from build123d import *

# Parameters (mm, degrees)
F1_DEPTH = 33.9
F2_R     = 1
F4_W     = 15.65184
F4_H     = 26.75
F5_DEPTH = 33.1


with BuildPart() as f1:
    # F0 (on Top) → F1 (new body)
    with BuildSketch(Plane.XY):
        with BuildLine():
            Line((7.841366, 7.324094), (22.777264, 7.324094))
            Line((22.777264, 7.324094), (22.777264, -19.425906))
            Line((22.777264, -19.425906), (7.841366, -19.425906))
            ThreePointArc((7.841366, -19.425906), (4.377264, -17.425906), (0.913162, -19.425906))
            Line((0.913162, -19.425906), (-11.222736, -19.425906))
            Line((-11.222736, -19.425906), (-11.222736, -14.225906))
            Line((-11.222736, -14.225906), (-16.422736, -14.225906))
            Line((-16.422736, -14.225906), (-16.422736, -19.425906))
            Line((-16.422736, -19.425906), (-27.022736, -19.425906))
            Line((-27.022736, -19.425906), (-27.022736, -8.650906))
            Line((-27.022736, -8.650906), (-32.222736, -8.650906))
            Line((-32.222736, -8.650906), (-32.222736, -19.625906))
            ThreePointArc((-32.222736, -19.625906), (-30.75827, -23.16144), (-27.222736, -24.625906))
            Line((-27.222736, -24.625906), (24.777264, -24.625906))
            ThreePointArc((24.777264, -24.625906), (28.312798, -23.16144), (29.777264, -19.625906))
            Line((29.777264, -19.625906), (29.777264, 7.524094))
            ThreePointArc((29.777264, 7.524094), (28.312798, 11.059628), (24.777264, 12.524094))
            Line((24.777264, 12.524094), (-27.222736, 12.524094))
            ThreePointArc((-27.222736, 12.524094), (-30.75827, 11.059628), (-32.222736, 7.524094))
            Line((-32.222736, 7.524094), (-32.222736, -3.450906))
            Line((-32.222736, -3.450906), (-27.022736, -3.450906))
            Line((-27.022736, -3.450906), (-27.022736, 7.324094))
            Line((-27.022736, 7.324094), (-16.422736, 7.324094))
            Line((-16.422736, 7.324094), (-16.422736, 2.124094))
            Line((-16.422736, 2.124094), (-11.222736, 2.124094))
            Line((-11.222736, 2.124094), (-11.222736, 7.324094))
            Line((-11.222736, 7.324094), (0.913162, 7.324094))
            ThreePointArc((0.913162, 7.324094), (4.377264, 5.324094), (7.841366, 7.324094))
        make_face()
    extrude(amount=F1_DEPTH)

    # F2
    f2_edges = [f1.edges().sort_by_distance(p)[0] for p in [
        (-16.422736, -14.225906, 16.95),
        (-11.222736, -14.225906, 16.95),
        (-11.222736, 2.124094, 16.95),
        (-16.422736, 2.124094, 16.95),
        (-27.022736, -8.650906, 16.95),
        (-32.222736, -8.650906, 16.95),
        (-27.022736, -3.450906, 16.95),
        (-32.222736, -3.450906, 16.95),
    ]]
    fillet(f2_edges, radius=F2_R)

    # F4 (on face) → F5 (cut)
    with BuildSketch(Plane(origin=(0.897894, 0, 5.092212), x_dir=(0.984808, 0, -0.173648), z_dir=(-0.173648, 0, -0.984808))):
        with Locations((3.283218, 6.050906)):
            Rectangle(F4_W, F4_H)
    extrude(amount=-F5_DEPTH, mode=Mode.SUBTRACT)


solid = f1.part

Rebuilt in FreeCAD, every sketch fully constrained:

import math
import FreeCAD as App
import Part
import Sketcher


def edges_at(feature, points):
    """Names of the edges that pass closest to the given points."""
    edges = feature.Shape.Edges
    near = lambda p: min(range(len(edges)), key=lambda i: edges[i].distToShape(Part.Vertex(*p))[0])
    return sorted({f"Edge{near(p) + 1}" for p in points})

doc = App.newDocument("Part")
body = doc.addObject("PartDesign::Body", "Body")

# Sketch on XY plane
sketch1 = doc.addObject("Sketcher::SketchObject", "Sketch")
body.addObject(sketch1)
sketch1.AttachmentSupport = (doc.XY_Plane, [""])
sketch1.MapMode = "FlatFace"
sketch1.addGeometry(Part.LineSegment(App.Vector(7.841366, 7.324094, 0), App.Vector(22.777264, 7.324094, 0)), False)
sketch1.addGeometry(Part.LineSegment(App.Vector(22.777264, 7.324094, 0), App.Vector(22.777264, -19.425906, 0)), False)
sketch1.addGeometry(Part.LineSegment(App.Vector(22.777264, -19.425906, 0), App.Vector(7.841366, -19.425906, 0)), False)
sketch1.addGeometry(Part.ArcOfCircle(Part.Circle(App.Vector(4.377264, -21.425907, 0), App.Vector(0, 0, 1), 4.000001), math.radians(30.000006), math.radians(149.999994)), False)
sketch1.addGeometry(Part.LineSegment(App.Vector(0.913162, -19.425906, 0), App.Vector(-11.222736, -19.425906, 0)), False)
sketch1.addGeometry(Part.LineSegment(App.Vector(-11.222736, -19.425906, 0), App.Vector(-11.222736, -14.225906, 0)), False)
sketch1.addGeometry(Part.LineSegment(App.Vector(-11.222736, -14.225906, 0), App.Vector(-16.422736, -14.225906, 0)), False)
sketch1.addGeometry(Part.LineSegment(App.Vector(-16.422736, -14.225906, 0), App.Vector(-16.422736, -19.425906, 0)), False)
sketch1.addGeometry(Part.LineSegment(App.Vector(-16.422736, -19.425906, 0), App.Vector(-27.022736, -19.425906, 0)), False)
sketch1.addGeometry(Part.LineSegment(App.Vector(-27.022736, -19.425906, 0), App.Vector(-27.022736, -8.650906, 0)), False)
sketch1.addGeometry(Part.LineSegment(App.Vector(-27.022736, -8.650906, 0), App.Vector(-32.222736, -8.650906, 0)), False)
sketch1.addGeometry(Part.LineSegment(App.Vector(-32.222736, -8.650906, 0), App.Vector(-32.222736, -19.625906, 0)), False)
sketch1.addGeometry(Part.ArcOfCircle(Part.Circle(App.Vector(-27.222736, -19.625906, 0), App.Vector(0, 0, 1), 5), math.radians(179.999996), math.radians(270.000004)), False)
sketch1.addGeometry(Part.LineSegment(App.Vector(-27.222736, -24.625906, 0), App.Vector(24.777264, -24.625906, 0)), False)
sketch1.addGeometry(Part.ArcOfCircle(Part.Circle(App.Vector(24.777264, -19.625906, 0), App.Vector(0, 0, 1), 5), math.radians(-90.000004), math.radians(0.000004)), False)
sketch1.addGeometry(Part.LineSegment(App.Vector(29.777264, -19.625906, 0), App.Vector(29.777264, 7.524094, 0)), False)
sketch1.addGeometry(Part.ArcOfCircle(Part.Circle(App.Vector(24.777264, 7.524094, 0), App.Vector(0, 0, 1), 5), math.radians(-0.000004), math.radians(90.000004)), False)
sketch1.addGeometry(Part.LineSegment(App.Vector(24.777264, 12.524094, 0), App.Vector(-27.222736, 12.524094, 0)), False)
sketch1.addGeometry(Part.ArcOfCircle(Part.Circle(App.Vector(-27.222736, 7.524094, 0), App.Vector(0, 0, 1), 5), math.radians(89.999996), math.radians(180.000004)), False)
sketch1.addGeometry(Part.LineSegment(App.Vector(-32.222736, 7.524094, 0), App.Vector(-32.222736, -3.450906, 0)), False)
sketch1.addGeometry(Part.LineSegment(App.Vector(-32.222736, -3.450906, 0), App.Vector(-27.022736, -3.450906, 0)), False)
sketch1.addGeometry(Part.LineSegment(App.Vector(-27.022736, -3.450906, 0), App.Vector(-27.022736, 7.324094, 0)), False)
sketch1.addGeometry(Part.LineSegment(App.Vector(-27.022736, 7.324094, 0), App.Vector(-16.422736, 7.324094, 0)), False)
sketch1.addGeometry(Part.LineSegment(App.Vector(-16.422736, 7.324094, 0), App.Vector(-16.422736, 2.124094, 0)), False)
sketch1.addGeometry(Part.LineSegment(App.Vector(-16.422736, 2.124094, 0), App.Vector(-11.222736, 2.124094, 0)), False)
sketch1.addGeometry(Part.LineSegment(App.Vector(-11.222736, 2.124094, 0), App.Vector(-11.222736, 7.324094, 0)), False)
sketch1.addGeometry(Part.LineSegment(App.Vector(-11.222736, 7.324094, 0), App.Vector(0.913162, 7.324094, 0)), False)
sketch1.addGeometry(Part.ArcOfCircle(Part.Circle(App.Vector(4.377264, 9.324095, 0), App.Vector(0, 0, 1), 4.000001), math.radians(-149.999994), math.radians(-30.000006)), False)
sketch1.addConstraint(Sketcher.Constraint("Coincident", 0, 2, 1, 1))
sketch1.addConstraint(Sketcher.Constraint("Coincident", 1, 2, 2, 1))
sketch1.addConstraint(Sketcher.Constraint("Coincident", 2, 2, 3, 1))
sketch1.addConstraint(Sketcher.Constraint("Coincident", 3, 2, 4, 1))
sketch1.addConstraint(Sketcher.Constraint("Coincident", 4, 2, 5, 1))
sketch1.addConstraint(Sketcher.Constraint("Coincident", 5, 2, 6, 1))
sketch1.addConstraint(Sketcher.Constraint("Coincident", 6, 2, 7, 1))
sketch1.addConstraint(Sketcher.Constraint("Coincident", 7, 2, 8, 1))
sketch1.addConstraint(Sketcher.Constraint("Coincident", 8, 2, 9, 1))
sketch1.addConstraint(Sketcher.Constraint("Coincident", 9, 2, 10, 1))
sketch1.addConstraint(Sketcher.Constraint("Coincident", 10, 2, 11, 1))
sketch1.addConstraint(Sketcher.Constraint("Tangent", 11, 2, 12, 1))
sketch1.addConstraint(Sketcher.Constraint("Tangent", 12, 2, 13, 1))
sketch1.addConstraint(Sketcher.Constraint("Tangent", 13, 2, 14, 1))
sketch1.addConstraint(Sketcher.Constraint("Tangent", 14, 2, 15, 1))
sketch1.addConstraint(Sketcher.Constraint("Tangent", 15, 2, 16, 1))
sketch1.addConstraint(Sketcher.Constraint("Tangent", 16, 2, 17, 1))
sketch1.addConstraint(Sketcher.Constraint("Tangent", 17, 2, 18, 1))
sketch1.addConstraint(Sketcher.Constraint("Tangent", 18, 2, 19, 1))
sketch1.addConstraint(Sketcher.Constraint("Coincident", 19, 2, 20, 1))
sketch1.addConstraint(Sketcher.Constraint("Coincident", 20, 2, 21, 1))
sketch1.addConstraint(Sketcher.Constraint("Coincident", 21, 2, 22, 1))
sketch1.addConstraint(Sketcher.Constraint("Coincident", 22, 2, 23, 1))
sketch1.addConstraint(Sketcher.Constraint("Coincident", 23, 2, 24, 1))
sketch1.addConstraint(Sketcher.Constraint("Coincident", 24, 2, 25, 1))
sketch1.addConstraint(Sketcher.Constraint("Coincident", 25, 2, 26, 1))
sketch1.addConstraint(Sketcher.Constraint("Coincident", 26, 2, 27, 1))
sketch1.addConstraint(Sketcher.Constraint("Coincident", 27, 2, 0, 1))
sketch1.addConstraint(Sketcher.Constraint("Horizontal", 0))
sketch1.addConstraint(Sketcher.Constraint("Vertical", 1))
sketch1.addConstraint(Sketcher.Constraint("Horizontal", 2))
sketch1.addConstraint(Sketcher.Constraint("Horizontal", 4))
sketch1.addConstraint(Sketcher.Constraint("Vertical", 5))
sketch1.addConstraint(Sketcher.Constraint("Horizontal", 6))
sketch1.addConstraint(Sketcher.Constraint("Vertical", 7))
sketch1.addConstraint(Sketcher.Constraint("Horizontal", 8))
sketch1.addConstraint(Sketcher.Constraint("Vertical", 9))
sketch1.addConstraint(Sketcher.Constraint("Horizontal", 10))
sketch1.addConstraint(Sketcher.Constraint("Vertical", 11))
sketch1.addConstraint(Sketcher.Constraint("Horizontal", 13))
sketch1.addConstraint(Sketcher.Constraint("Vertical", 15))
sketch1.addConstraint(Sketcher.Constraint("Horizontal", 17))
sketch1.addConstraint(Sketcher.Constraint("Vertical", 19))
sketch1.addConstraint(Sketcher.Constraint("Horizontal", 20))
sketch1.addConstraint(Sketcher.Constraint("Vertical", 21))
sketch1.addConstraint(Sketcher.Constraint("Horizontal", 22))
sketch1.addConstraint(Sketcher.Constraint("Vertical", 23))
sketch1.addConstraint(Sketcher.Constraint("Horizontal", 24))
sketch1.addConstraint(Sketcher.Constraint("Vertical", 25))
sketch1.addConstraint(Sketcher.Constraint("Horizontal", 26))
sketch1.addConstraint(Sketcher.Constraint("Equal", 12, 14))
sketch1.addConstraint(Sketcher.Constraint("Equal", 14, 16))
sketch1.addConstraint(Sketcher.Constraint("Equal", 16, 18))
sketch1.addConstraint(Sketcher.Constraint("Equal", 3, 27))
sketch1.addConstraint(Sketcher.Constraint("Horizontal", 2, 2, 3, 2))
sketch1.addConstraint(Sketcher.Constraint("Horizontal", 4, 2, 7, 2))
sketch1.addConstraint(Sketcher.Constraint("Horizontal", 0, 2, 21, 2))
sketch1.addConstraint(Sketcher.Constraint("Horizontal", 22, 2, 25, 2))
sketch1.addConstraint(Sketcher.Constraint("Vertical", 12, 3, 18, 3))
sketch1.addConstraint(Sketcher.Constraint("Vertical", 3, 3, 27, 3))
sketch1.addConstraint(Sketcher.Constraint("Vertical", 9, 2, 20, 2))
sketch1.addConstraint(Sketcher.Constraint("Vertical", 7, 2, 22, 2))
sketch1.addConstraint(Sketcher.Constraint("Vertical", 5, 2, 24, 2))
sketch1.addConstraint(Sketcher.Constraint("Vertical", 3, 2, 26, 2))
sketch1.addConstraint(Sketcher.Constraint("Equal", 6, 10))
sketch1.addConstraint(Sketcher.Constraint("Equal", 24, 5))
sketch1.addConstraint(Sketcher.Constraint("Equal", 11, 19))
sketch1.addConstraint(Sketcher.Constraint("Equal", 9, 21))
sketch1.addConstraint(Sketcher.Constraint("Equal", 7, 23))
sketch1.addConstraint(Sketcher.Constraint("Radius", 3, 4.000001))
sketch1.addConstraint(Sketcher.Constraint("Radius", 12, 5.0))
sketch1.addConstraint(Sketcher.Constraint("DistanceX", 13, 1, 13, 2, 52.0))
sketch1.addConstraint(Sketcher.Constraint("DistanceX", 6, 2, 6, 1, 5.2))
sketch1.addConstraint(Sketcher.Constraint("DistanceX", 8, 2, 8, 1, 10.6))
sketch1.addConstraint(Sketcher.Constraint("DistanceX", 0, 2, 16, 3, 2.0))
sketch1.addConstraint(Sketcher.Constraint("DistanceY", 0, 2, 27, 3, 2.000001))
sketch1.addConstraint(Sketcher.Constraint("DistanceY", 1, 2, 1, 1, 26.75))
sketch1.addConstraint(Sketcher.Constraint("DistanceY", 15, 1, 15, 2, 27.15))
sketch1.addConstraint(Sketcher.Constraint("DistanceX", 12, 3, 3, 3, 31.6))
sketch1.addConstraint(Sketcher.Constraint("DistanceY", 10, 2, 19, 2, 5.2))
sketch1.addConstraint(Sketcher.Constraint("DistanceX", -1, 1, 3, 2, 0.913162))
sketch1.addConstraint(Sketcher.Constraint("DistanceY", 3, 3, -1, 1, 21.425907))
pad1 = doc.addObject("PartDesign::Pad", "Pad")
body.addObject(pad1)
pad1.Profile = sketch1
pad1.Length = 33.9
doc.recompute()

fillet = doc.addObject("PartDesign::Fillet", "Fillet")
body.addObject(fillet)
fillet.Base = (pad1, edges_at(pad1, [
    (-16.423, -14.226, 16.95),
    (-11.223, -14.226, 16.95),
    (-11.223, 2.124, 16.95),
    (-16.423, 2.124, 16.95),
    (-27.023, -8.651, 16.95),
    (-32.223, -8.651, 16.95),
    (-27.023, -3.451, 16.95),
    (-32.223, -3.451, 16.95),
]))
fillet.Radius = 1

# Sketch on an angled plane
sketch2 = doc.addObject("Sketcher::SketchObject", "Sketch001")
body.addObject(sketch2)
sketch2.Placement = App.Placement(App.Vector(0.897894, 0, 5.092212), App.Rotation(App.Vector(0.984807791, 0, -0.173647963), App.Vector(0, -1, 0), App.Vector(-0.173647963, 0, -0.984807791), "ZXY"))
sketch2.addGeometry(Part.LineSegment(App.Vector(-4.542702, 19.425906, 0), App.Vector(-4.542702, -7.324094, 0)), False)
sketch2.addGeometry(Part.LineSegment(App.Vector(-4.542702, -7.324094, 0), App.Vector(11.109138, -7.324094, 0)), False)
sketch2.addGeometry(Part.LineSegment(App.Vector(11.109138, -7.324094, 0), App.Vector(11.109138, 19.425906, 0)), False)
sketch2.addGeometry(Part.LineSegment(App.Vector(11.109138, 19.425906, 0), App.Vector(-4.542702, 19.425906, 0)), False)
sketch2.addConstraint(Sketcher.Constraint("Coincident", 0, 2, 1, 1))
sketch2.addConstraint(Sketcher.Constraint("Coincident", 1, 2, 2, 1))
sketch2.addConstraint(Sketcher.Constraint("Coincident", 2, 2, 3, 1))
sketch2.addConstraint(Sketcher.Constraint("Coincident", 3, 2, 0, 1))
sketch2.addConstraint(Sketcher.Constraint("Vertical", 0))
sketch2.addConstraint(Sketcher.Constraint("Horizontal", 1))
sketch2.addConstraint(Sketcher.Constraint("Vertical", 2))
sketch2.addConstraint(Sketcher.Constraint("Horizontal", 3))
sketch2.addConstraint(Sketcher.Constraint("DistanceY", 0, 2, 0, 1, 26.75))
sketch2.addConstraint(Sketcher.Constraint("DistanceX", 1, 1, 1, 2, 15.65184))
sketch2.addConstraint(Sketcher.Constraint("DistanceX", -1, 1, 1, 2, 11.109138))
sketch2.addConstraint(Sketcher.Constraint("DistanceY", 0, 2, -1, 1, 7.324094))
pocket1 = doc.addObject("PartDesign::Pocket", "Pocket")
body.addObject(pocket1)
pocket1.Profile = sketch2
pocket1.Length = 33.1

doc.recompute()
